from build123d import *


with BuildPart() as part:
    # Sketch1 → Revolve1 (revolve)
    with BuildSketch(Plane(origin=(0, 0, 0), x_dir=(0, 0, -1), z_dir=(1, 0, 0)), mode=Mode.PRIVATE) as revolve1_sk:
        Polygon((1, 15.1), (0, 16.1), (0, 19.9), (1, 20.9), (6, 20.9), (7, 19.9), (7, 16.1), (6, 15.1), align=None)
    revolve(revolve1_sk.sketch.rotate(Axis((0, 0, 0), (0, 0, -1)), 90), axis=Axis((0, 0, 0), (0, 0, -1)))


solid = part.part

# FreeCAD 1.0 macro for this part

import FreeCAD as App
import Part
import Sketcher

doc = App.newDocument("Part")
body = doc.addObject("PartDesign::Body", "Body")

# Sketch on YZ plane
sketch1 = body.newObject("Sketcher::SketchObject", "Sketch")
sketch1.AttachmentSupport = (doc.getObject("YZ_Plane"), [""])
sketch1.MapMode = "FlatFace"
sketch1.addGeometry([
    Part.LineSegment(App.Vector(16.1, 0, 0), App.Vector(15.1, -1, 0)),  # 0
    Part.LineSegment(App.Vector(15.1, -1, 0), App.Vector(15.1, -6, 0)),  # 1
    Part.LineSegment(App.Vector(15.1, -6, 0), App.Vector(16.1, -7, 0)),  # 2
    Part.LineSegment(App.Vector(16.1, -7, 0), App.Vector(19.9, -7, 0)),  # 3
    Part.LineSegment(App.Vector(19.9, -7, 0), App.Vector(20.9, -6, 0)),  # 4
    Part.LineSegment(App.Vector(20.9, -6, 0), App.Vector(20.9, -1, 0)),  # 5
    Part.LineSegment(App.Vector(20.9, -1, 0), App.Vector(19.9, 0, 0)),  # 6
    Part.LineSegment(App.Vector(19.9, 0, 0), App.Vector(16.1, 0, 0)),  # 7
], False)
sketch1.addConstraint([
    Sketcher.Constraint("Coincident", 0, 2, 1, 1),
    Sketcher.Constraint("Coincident", 1, 2, 2, 1),
    Sketcher.Constraint("Coincident", 2, 2, 3, 1),
    Sketcher.Constraint("Coincident", 3, 2, 4, 1),
    Sketcher.Constraint("Coincident", 4, 2, 5, 1),
    Sketcher.Constraint("Coincident", 5, 2, 6, 1),
    Sketcher.Constraint("Coincident", 6, 2, 7, 1),
    Sketcher.Constraint("Coincident", 7, 2, 0, 1),
    Sketcher.Constraint("Vertical", 1),
    Sketcher.Constraint("Horizontal", 3),
    Sketcher.Constraint("Vertical", 5),
    Sketcher.Constraint("Horizontal", 7),
    Sketcher.Constraint("PointOnObject", 6, 2, -1),
    Sketcher.Constraint("Perpendicular", 0, 2),
    Sketcher.Constraint("Perpendicular", 2, 4),
    Sketcher.Constraint("Perpendicular", 4, 6),
    Sketcher.Constraint("Horizontal", 1, 2, 4, 2),
    Sketcher.Constraint("Horizontal", 0, 2, 5, 2),
    Sketcher.Constraint("Vertical", 3, 2, 6, 2),
    Sketcher.Constraint("Vertical", 2, 2, 7, 2),
    Sketcher.Constraint("DistanceY", 1, 2, 1, 1, 5.0),
    Sketcher.Constraint("DistanceX", 3, 1, 3, 2, 3.8),
    Sketcher.Constraint("DistanceY", 0, 2, -1, 1, 1.0),
    Sketcher.Constraint("DistanceX", -1, 1, 0, 2, 15.1),
])
revolution = body.newObject("PartDesign::Revolution", "Revolution")
revolution.Profile = sketch1
revolution.ReferenceAxis = (sketch1, ["V_Axis"])
revolution.Angle = 360

doc.recompute()
